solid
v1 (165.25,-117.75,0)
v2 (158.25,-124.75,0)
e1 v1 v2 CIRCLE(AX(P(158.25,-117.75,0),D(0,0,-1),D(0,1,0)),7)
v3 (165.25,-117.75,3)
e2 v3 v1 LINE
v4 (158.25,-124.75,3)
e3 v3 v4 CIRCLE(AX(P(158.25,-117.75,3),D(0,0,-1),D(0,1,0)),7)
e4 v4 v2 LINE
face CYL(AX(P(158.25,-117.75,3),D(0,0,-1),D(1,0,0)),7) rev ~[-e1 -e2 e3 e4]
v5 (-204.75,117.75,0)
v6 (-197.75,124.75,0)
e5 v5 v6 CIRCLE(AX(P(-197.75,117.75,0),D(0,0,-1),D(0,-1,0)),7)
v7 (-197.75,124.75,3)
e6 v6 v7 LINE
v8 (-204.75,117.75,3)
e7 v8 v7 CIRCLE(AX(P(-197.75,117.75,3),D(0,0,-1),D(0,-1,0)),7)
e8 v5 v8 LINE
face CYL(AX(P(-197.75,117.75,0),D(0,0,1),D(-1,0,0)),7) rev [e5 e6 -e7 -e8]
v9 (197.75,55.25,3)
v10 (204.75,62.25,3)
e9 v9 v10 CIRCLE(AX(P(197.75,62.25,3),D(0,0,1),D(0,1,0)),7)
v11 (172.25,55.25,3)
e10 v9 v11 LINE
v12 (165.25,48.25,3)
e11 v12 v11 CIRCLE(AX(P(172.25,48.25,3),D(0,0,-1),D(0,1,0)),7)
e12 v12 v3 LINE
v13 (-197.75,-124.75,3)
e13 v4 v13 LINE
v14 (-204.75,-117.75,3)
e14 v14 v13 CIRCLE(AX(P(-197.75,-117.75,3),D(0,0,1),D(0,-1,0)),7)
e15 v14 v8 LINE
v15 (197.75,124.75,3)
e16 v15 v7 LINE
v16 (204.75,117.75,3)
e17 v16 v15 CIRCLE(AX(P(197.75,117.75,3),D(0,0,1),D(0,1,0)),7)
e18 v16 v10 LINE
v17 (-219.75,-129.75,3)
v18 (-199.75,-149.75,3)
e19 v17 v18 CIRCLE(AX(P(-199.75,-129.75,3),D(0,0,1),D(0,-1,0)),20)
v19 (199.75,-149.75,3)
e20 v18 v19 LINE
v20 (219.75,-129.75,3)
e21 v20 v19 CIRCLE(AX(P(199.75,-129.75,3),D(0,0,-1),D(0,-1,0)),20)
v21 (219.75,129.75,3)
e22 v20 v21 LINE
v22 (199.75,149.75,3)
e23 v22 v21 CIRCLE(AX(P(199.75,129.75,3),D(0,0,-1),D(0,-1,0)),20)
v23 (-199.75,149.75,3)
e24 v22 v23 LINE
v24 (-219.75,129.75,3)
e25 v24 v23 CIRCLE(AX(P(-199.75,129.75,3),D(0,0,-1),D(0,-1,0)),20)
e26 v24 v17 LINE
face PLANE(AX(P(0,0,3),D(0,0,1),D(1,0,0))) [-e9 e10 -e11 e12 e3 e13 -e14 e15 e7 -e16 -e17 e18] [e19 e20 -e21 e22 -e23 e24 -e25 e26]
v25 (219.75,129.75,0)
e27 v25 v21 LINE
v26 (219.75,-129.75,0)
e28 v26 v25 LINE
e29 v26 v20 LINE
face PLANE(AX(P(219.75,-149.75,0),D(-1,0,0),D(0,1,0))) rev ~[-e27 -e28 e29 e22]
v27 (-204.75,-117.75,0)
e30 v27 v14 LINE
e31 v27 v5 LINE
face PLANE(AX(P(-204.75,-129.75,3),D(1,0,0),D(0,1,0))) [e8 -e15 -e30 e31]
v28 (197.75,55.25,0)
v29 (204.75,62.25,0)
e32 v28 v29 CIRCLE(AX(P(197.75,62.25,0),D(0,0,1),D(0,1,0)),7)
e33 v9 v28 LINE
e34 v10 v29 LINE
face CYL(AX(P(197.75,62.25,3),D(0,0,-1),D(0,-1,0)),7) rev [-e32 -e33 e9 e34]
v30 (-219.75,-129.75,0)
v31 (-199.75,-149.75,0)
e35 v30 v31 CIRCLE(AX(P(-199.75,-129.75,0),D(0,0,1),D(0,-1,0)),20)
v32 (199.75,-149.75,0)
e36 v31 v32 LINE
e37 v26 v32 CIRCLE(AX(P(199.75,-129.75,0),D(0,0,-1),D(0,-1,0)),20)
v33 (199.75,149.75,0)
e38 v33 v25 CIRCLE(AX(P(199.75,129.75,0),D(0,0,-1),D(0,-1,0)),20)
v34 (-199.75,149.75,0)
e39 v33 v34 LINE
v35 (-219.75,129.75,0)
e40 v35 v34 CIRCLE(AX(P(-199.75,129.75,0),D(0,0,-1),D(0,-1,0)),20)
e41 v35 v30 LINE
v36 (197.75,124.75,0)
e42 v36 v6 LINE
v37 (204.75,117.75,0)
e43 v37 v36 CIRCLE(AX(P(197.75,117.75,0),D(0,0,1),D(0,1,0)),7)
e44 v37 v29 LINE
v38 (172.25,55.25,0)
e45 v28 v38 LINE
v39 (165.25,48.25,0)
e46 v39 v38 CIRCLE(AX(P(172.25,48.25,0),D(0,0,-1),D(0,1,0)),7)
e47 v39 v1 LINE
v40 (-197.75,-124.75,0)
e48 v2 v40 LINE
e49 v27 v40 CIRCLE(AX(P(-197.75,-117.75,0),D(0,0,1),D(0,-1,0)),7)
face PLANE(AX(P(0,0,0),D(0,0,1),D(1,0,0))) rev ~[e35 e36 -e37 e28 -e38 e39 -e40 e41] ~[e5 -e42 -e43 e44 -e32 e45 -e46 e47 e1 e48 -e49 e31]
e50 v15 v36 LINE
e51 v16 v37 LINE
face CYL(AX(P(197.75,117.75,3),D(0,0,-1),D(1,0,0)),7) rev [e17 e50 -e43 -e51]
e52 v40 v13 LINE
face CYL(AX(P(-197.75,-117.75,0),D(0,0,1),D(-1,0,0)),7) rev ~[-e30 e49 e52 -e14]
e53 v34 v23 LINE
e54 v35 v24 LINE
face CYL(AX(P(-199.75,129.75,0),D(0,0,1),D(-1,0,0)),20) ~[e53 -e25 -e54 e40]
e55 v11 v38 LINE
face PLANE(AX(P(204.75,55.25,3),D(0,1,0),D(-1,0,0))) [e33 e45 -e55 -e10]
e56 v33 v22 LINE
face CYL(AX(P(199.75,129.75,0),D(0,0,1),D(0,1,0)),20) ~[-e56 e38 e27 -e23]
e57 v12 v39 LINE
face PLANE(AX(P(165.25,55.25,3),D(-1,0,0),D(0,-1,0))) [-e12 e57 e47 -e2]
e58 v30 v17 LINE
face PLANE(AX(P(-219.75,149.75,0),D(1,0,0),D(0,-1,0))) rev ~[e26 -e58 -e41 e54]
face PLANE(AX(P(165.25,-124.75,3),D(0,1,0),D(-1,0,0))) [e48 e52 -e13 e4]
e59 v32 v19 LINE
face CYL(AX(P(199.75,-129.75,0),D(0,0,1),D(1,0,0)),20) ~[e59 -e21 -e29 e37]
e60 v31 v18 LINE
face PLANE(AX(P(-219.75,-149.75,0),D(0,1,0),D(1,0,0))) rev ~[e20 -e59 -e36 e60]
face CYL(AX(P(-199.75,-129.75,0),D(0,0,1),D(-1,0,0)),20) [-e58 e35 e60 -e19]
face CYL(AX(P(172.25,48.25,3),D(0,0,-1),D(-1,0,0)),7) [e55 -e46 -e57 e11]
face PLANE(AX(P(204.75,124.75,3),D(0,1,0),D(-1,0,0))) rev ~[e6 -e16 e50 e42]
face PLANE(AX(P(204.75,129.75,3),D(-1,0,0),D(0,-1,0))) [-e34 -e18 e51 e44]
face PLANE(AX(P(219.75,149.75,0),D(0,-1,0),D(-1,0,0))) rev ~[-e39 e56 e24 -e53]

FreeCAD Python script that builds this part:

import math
import FreeCAD as App
import Part
import Sketcher
from FreeCAD import Vector
Q = App.Units.Quantity


def edges_at(feature, points):
    """Names of the edges that pass closest to the given points."""
    edges = feature.Shape.Edges
    near = lambda p: min(range(len(edges)), key=lambda i: edges[i].distToShape(Part.Vertex(*p))[0])
    return sorted({f"Edge{near(p) + 1}" for p in points})


def add_polygon(sketch, points):
    """Adds a closed chain of lines whose ends are joined by coincident constraints."""
    first, n = sketch.GeometryCount, len(points)
    for a, b in zip(points, points[1:] + points[:1]):
        sketch.addGeometry(Part.LineSegment(App.Vector(*a, 0), App.Vector(*b, 0)), False)
    for i in range(n):
        sketch.addConstraint(Sketcher.Constraint("Coincident", first + i, 2, first + (i + 1) % n, 1))

doc = App.newDocument("Part")
body = doc.addObject("PartDesign::Body", "Body")

sketch1 = body.newObject("Sketcher::SketchObject", "Sketch")
sketch1.AttachmentSupport = (doc.getObject("XY_Plane"), [""])
sketch1.MapMode = "FlatFace"
add_polygon(sketch1, [(-220, 150), (-220, -150), (220, -150), (220, 150)])
sketch1.addConstraint(Sketcher.Constraint("Vertical", 0))
sketch1.addConstraint(Sketcher.Constraint("Horizontal", 1))
sketch1.addConstraint(Sketcher.Constraint("Vertical", 2))
sketch1.addConstraint(Sketcher.Constraint("Horizontal", 3))
sketch1.addConstraint(Sketcher.Constraint("Symmetric", 0, 2, 2, 2, -1, 1))
sketch1.addConstraint(Sketcher.Constraint("DistanceX", 1, 1, 1, 2, Q("439.5 mm")))
sketch1.addConstraint(Sketcher.Constraint("DistanceY", 0, 2, 0, 1, Q("299.5 mm")))
pad1 = body.newObject("PartDesign::Pad", "Pad")
pad1.Profile = sketch1
pad1.Length = 3
doc.recompute()

fillet = body.newObject("PartDesign::Fillet", "Fillet")
fillet.Base = (pad1, edges_at(pad1, [
    (219.75, 149.75, 1.5),
    (219.75, -149.75, 1.5),
    (-219.75, -149.75, 1.5),
    (-219.75, 149.75, 1.5),
]))
fillet.Radius = 20

sketch2 = body.newObject("Sketcher::SketchObject", "Sketch001")
sketch2.AttachmentSupport = (doc.getObject("XY_Plane"), [""])
sketch2.MapMode = "FlatFace"
sketch2.AttachmentOffset = App.Placement(Vector(0, 0, 3), App.Rotation())
sketch2.addGeometry(Part.LineSegment(Vector(-200, -135, 0), Vector(165, -135, 0)), False)
sketch2.addGeometry(Part.LineSegment(Vector(165, -135, 0), Vector(165, 55, 0)), False)
sketch2.addGeometry(Part.LineSegment(Vector(165, 55, 0), Vector(205, 55, 0)), False)
sketch2.addGeometry(Part.LineSegment(Vector(205, 55, 0), Vector(205, 130, 0)), False)
sketch2.addGeometry(Part.ArcOfCircle(Part.Circle(Vector(200, 130, 0), Vector(0, 0, 1), 5), math.radians(0), math.radians(90)), False)
sketch2.addGeometry(Part.LineSegment(Vector(200, 135, 0), Vector(-200, 135, 0)), False)
sketch2.addGeometry(Part.ArcOfCircle(Part.Circle(Vector(-200, 130, 0), Vector(0, 0, 1), 5), math.radians(90), math.radians(180)), False)
sketch2.addGeometry(Part.LineSegment(Vector(-205, 130, 0), Vector(-205, -130, 0)), False)
sketch2.addGeometry(Part.ArcOfCircle(Part.Circle(Vector(-200, -130, 0), Vector(0, 0, 1), 5), math.radians(180), math.radians(270)), False)
sketch2.addConstraint(Sketcher.Constraint("Coincident", 0, 2, 1, 1))
sketch2.addConstraint(Sketcher.Constraint("Coincident", 1, 2, 2, 1))
sketch2.addConstraint(Sketcher.Constraint("Coincident", 2, 2, 3, 1))
sketch2.addConstraint(Sketcher.Constraint("Tangent", 3, 2, 4, 1))
sketch2.addConstraint(Sketcher.Constraint("Tangent", 4, 2, 5, 1))
sketch2.addConstraint(Sketcher.Constraint("Tangent", 5, 2, 6, 1))
sketch2.addConstraint(Sketcher.Constraint("Tangent", 6, 2, 7, 1))
sketch2.addConstraint(Sketcher.Constraint("Tangent", 7, 2, 8, 1))
sketch2.addConstraint(Sketcher.Constraint("Tangent", 8, 2, 0, 1))
sketch2.addConstraint(Sketcher.Constraint("Horizontal", 0))
sketch2.addConstraint(Sketcher.Constraint("Vertical", 1))
sketch2.addConstraint(Sketcher.Constraint("Horizontal", 2))
sketch2.addConstraint(Sketcher.Constraint("Vertical", 3))
sketch2.addConstraint(Sketcher.Constraint("Horizontal", 5))
sketch2.addConstraint(Sketcher.Constraint("Vertical", 7))
sketch2.addConstraint(Sketcher.Constraint("Equal", 4, 6))
sketch2.addConstraint(Sketcher.Constraint("Equal", 6, 8))
sketch2.addConstraint(Sketcher.Constraint("Symmetric", 4, 3, 8, 3, -1, 1))
sketch2.addConstraint(Sketcher.Constraint("DistanceY", 1, 1, 1, 2, Q("190 mm")))
sketch2.addConstraint(Sketcher.Constraint("Radius", 4, Q("5 mm")))
sketch2.addConstraint(Sketcher.Constraint("DistanceX", 6, 2, 1, 2, Q("370 mm")))
sketch2.addConstraint(Sketcher.Constraint("DistanceX", 2, 1, 2, 2, Q("39.5 mm")))
sketch2.addConstraint(Sketcher.Constraint("DistanceY", 3, 1, 3, 2, Q("74.5 mm")))
pocket1 = body.newObject("PartDesign::Pocket", "Pocket")
pocket1.Profile = sketch2
pocket1.Type = "ThroughAll"
doc.recompute()

fillet2 = body.newObject("PartDesign::Fillet", "Fillet001")
fillet2.Base = (pocket1, edges_at(pocket1, [(204.75, 55.25, 1.5), (165.25, 55.25, 1.5), (165.25, -134.75, 1.5)]))
fillet2.Radius = 7

sketch3 = body.newObject("Sketcher::SketchObject", "Sketch002")
sketch3.AttachmentSupport = (doc.getObject("XY_Plane"), [""])
sketch3.MapMode = "FlatFace"
sketch3.AttachmentOffset = App.Placement(Vector(0, 0, 3), App.Rotation())
add_polygon(sketch3, [(165, -135), (165, -125), (-207, -125), (-207, -135)])
add_polygon(sketch3, [(205, 135), (-207, 135), (-207, 125), (205, 125)])
sketch3.addConstraint(Sketcher.Constraint("Vertical", 0))
sketch3.addConstraint(Sketcher.Constraint("Horizontal", 1))
sketch3.addConstraint(Sketcher.Constraint("Vertical", 2))
sketch3.addConstraint(Sketcher.Constraint("Horizontal", 3))
sketch3.addConstraint(Sketcher.Constraint("Horizontal", 4))
sketch3.addConstraint(Sketcher.Constraint("Vertical", 5))
sketch3.addConstraint(Sketcher.Constraint("Horizontal", 6))
sketch3.addConstraint(Sketcher.Constraint("Vertical", 7))
sketch3.addConstraint(Sketcher.Constraint("Symmetric", 2, 2, 4, 2, -1))
sketch3.addConstraint(Sketcher.Constraint("Equal", 2, 5))
sketch3.addConstraint(Sketcher.Constraint("DistanceY", 0, 1, 0, 2, Q("10 mm")))
sketch3.addConstraint(Sketcher.Constraint("DistanceX", 1, 2, 1, 1, Q("372 mm")))
sketch3.addConstraint(Sketcher.Constraint("DistanceX", 4, 2, 4, 1, Q("411.5 mm")))
sketch3.addConstraint(Sketcher.Constraint("DistanceY", 1, 2, 4, 2, Q("259.5 mm")))
sketch3.addConstraint(Sketcher.Constraint("DistanceX", -1, 1, 0, 2, Q("165.25 mm")))
pad2 = body.newObject("PartDesign::Pad", "Pad001")
pad2.Profile = sketch3
pad2.Length = 3
pad2.Reversed = True
doc.recompute()

fillet3 = body.newObject("PartDesign::Fillet", "Fillet002")
fillet3.Base = (pad2, edges_at(pad2, [
    (204.75, 124.75, 1.5),
    (-204.75, 124.75, 1.5),
    (-204.75, -124.75, 1.5),
    (165.25, -124.75, 1.5),
]))
fillet3.Radius = 7

doc.recompute()
